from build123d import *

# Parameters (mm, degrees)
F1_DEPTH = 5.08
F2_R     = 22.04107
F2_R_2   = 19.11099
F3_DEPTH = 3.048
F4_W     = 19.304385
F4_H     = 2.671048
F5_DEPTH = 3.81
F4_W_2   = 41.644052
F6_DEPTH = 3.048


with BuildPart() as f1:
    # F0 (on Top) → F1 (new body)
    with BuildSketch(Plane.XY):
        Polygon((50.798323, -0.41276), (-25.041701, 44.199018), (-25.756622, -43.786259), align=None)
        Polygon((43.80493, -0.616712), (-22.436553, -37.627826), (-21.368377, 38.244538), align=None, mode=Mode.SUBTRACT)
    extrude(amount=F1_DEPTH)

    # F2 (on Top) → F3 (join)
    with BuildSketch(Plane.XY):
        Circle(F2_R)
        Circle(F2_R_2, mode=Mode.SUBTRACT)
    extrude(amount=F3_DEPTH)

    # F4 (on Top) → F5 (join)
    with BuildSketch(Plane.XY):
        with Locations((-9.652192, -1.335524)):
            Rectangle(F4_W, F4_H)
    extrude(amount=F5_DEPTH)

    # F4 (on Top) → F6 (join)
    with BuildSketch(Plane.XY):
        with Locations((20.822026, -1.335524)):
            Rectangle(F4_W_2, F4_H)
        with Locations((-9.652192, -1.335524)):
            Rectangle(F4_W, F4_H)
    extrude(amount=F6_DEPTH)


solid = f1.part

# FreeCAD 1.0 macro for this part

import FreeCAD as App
import Part
import Sketcher
from FreeCAD import Vector
Q = App.Units.Quantity


def add_polygon(sketch, points):
    """Adds a closed chain of lines whose ends are joined by coincident constraints."""
    first, n = sketch.GeometryCount, len(points)
    for a, b in zip(points, points[1:] + points[:1]):
        sketch.addGeometry(Part.LineSegment(App.Vector(*a, 0), App.Vector(*b, 0)), False)
    for i in range(n):
        sketch.addConstraint(Sketcher.Constraint("Coincident", first + i, 2, first + (i + 1) % n, 1))

doc = App.newDocument("Part")
body = doc.addObject("PartDesign::Body", "Body")

sketch1 = body.newObject("Sketcher::SketchObject", "Sketch")
sketch1.AttachmentSupport = (doc.getObject("XY_Plane"), [""])
sketch1.MapMode = "FlatFace"
add_polygon(sketch1, [(50.798323, -0.41276), (-25.041701, 44.199018), (-25.756622, -43.786259)])
add_polygon(sketch1, [(-21.368377, 38.244538), (43.80493, -0.616712), (-22.436553, -37.627826)])
sketch1.addConstraint(Sketcher.Constraint("Equal", 0, 1))
sketch1.addConstraint(Sketcher.Constraint("Equal", 1, 2))
sketch1.addConstraint(Sketcher.Constraint("Equal", 3, 4))
sketch1.addConstraint(Sketcher.Constraint("Equal", 4, 5))
sketch1.addConstraint(Sketcher.Constraint("DistanceX", 0, 2, -1, 1, 25.041701))
sketch1.addConstraint(Sketcher.Constraint("DistanceY", 1, 2, 2, 2, 43.373499))
sketch1.addConstraint(Sketcher.Constraint("DistanceX", 5, 2, 2, 2, 72.1667))
sketch1.addConstraint(Sketcher.Constraint("Distance", 0, 87.988181))
sketch1.addConstraint(Sketcher.Constraint("DistanceY", -1, 1, 0, 2, 44.199018))
sketch1.addConstraint(Sketcher.Constraint("DistanceX", -1, 1, 3, 2, 43.80493))
sketch1.addConstraint(Sketcher.Constraint("DistanceY", 3, 2, 0, 2, 44.81573))
sketch1.addConstraint(Sketcher.Constraint("DistanceX", 1, 2, 4, 2, 3.320069))
pad1 = body.newObject("PartDesign::Pad", "Pad")
pad1.Profile = sketch1
pad1.Length = Q("0.2 in")

sketch2 = body.newObject("Sketcher::SketchObject", "Sketch001")
sketch2.AttachmentSupport = (doc.getObject("XY_Plane"), [""])
sketch2.MapMode = "FlatFace"
sketch2.addGeometry(Part.Circle(Vector(0, 0, 0), Vector(0, 0, 1), 22.04107), False)
sketch2.addGeometry(Part.Circle(Vector(0, 0, 0), Vector(0, 0, 1), 19.11099), False)
sketch2.addConstraint(Sketcher.Constraint("Coincident", 0, 3, -1, 1))
sketch2.addConstraint(Sketcher.Constraint("Coincident", 1, 3, -1, 1))
sketch2.addConstraint(Sketcher.Constraint("Diameter", 0, 44.08214))
sketch2.addConstraint(Sketcher.Constraint("Diameter", 1, 38.22198))
pad2 = body.newObject("PartDesign::Pad", "Pad001")
pad2.Profile = sketch2
pad2.Length = Q("0.12 in")

sketch3 = body.newObject("Sketcher::SketchObject", "Sketch002")
sketch3.AttachmentSupport = (doc.getObject("XY_Plane"), [""])
sketch3.MapMode = "FlatFace"
add_polygon(sketch3, [(-19.304385, 0), (-19.304385, -2.671048), (0, -2.671048), (0, 0)])
sketch3.addConstraint(Sketcher.Constraint("Vertical", 0))
sketch3.addConstraint(Sketcher.Constraint("Horizontal", 1))
sketch3.addConstraint(Sketcher.Constraint("Vertical", 2))
sketch3.addConstraint(Sketcher.Constraint("Horizontal", 3))
sketch3.addConstraint(Sketcher.Constraint("Coincident", 2, 2, -1, 1))
sketch3.addConstraint(Sketcher.Constraint("DistanceX", 1, 1, 1, 2, 19.304385))
sketch3.addConstraint(Sketcher.Constraint("DistanceY", 0, 2, 0, 1, 2.671048))
pad3 = body.newObject("PartDesign::Pad", "Pad002")
pad3.Profile = sketch3
pad3.Length = Q("0.15 in")

sketch4 = body.newObject("Sketcher::SketchObject", "Sketch003")
sketch4.AttachmentSupport = (doc.getObject("XY_Plane"), [""])
sketch4.MapMode = "FlatFace"
add_polygon(sketch4, [(-19.304385, 0), (-19.304385, -2.671048), (41.644052, -2.671048), (41.644052, 0)])
sketch4.addConstraint(Sketcher.Constraint("Vertical", 0))
sketch4.addConstraint(Sketcher.Constraint("Horizontal", 1))
sketch4.addConstraint(Sketcher.Constraint("Vertical", 2))
sketch4.addConstraint(Sketcher.Constraint("Horizontal", 3))
sketch4.addConstraint(Sketcher.Constraint("PointOnObject", 2, 2, -1))
sketch4.addConstraint(Sketcher.Constraint("DistanceX", 1, 1, 1, 2, 60.948436))
sketch4.addConstraint(Sketcher.Constraint("DistanceY", 0, 2, 0, 1, 2.671048))
sketch4.addConstraint(Sketcher.Constraint("DistanceX", 0, 2, -1, 1, 19.304385))
pad4 = body.newObject("PartDesign::Pad", "Pad003")
pad4.Profile = sketch4
pad4.Length = Q("0.12 in")

doc.recompute()
